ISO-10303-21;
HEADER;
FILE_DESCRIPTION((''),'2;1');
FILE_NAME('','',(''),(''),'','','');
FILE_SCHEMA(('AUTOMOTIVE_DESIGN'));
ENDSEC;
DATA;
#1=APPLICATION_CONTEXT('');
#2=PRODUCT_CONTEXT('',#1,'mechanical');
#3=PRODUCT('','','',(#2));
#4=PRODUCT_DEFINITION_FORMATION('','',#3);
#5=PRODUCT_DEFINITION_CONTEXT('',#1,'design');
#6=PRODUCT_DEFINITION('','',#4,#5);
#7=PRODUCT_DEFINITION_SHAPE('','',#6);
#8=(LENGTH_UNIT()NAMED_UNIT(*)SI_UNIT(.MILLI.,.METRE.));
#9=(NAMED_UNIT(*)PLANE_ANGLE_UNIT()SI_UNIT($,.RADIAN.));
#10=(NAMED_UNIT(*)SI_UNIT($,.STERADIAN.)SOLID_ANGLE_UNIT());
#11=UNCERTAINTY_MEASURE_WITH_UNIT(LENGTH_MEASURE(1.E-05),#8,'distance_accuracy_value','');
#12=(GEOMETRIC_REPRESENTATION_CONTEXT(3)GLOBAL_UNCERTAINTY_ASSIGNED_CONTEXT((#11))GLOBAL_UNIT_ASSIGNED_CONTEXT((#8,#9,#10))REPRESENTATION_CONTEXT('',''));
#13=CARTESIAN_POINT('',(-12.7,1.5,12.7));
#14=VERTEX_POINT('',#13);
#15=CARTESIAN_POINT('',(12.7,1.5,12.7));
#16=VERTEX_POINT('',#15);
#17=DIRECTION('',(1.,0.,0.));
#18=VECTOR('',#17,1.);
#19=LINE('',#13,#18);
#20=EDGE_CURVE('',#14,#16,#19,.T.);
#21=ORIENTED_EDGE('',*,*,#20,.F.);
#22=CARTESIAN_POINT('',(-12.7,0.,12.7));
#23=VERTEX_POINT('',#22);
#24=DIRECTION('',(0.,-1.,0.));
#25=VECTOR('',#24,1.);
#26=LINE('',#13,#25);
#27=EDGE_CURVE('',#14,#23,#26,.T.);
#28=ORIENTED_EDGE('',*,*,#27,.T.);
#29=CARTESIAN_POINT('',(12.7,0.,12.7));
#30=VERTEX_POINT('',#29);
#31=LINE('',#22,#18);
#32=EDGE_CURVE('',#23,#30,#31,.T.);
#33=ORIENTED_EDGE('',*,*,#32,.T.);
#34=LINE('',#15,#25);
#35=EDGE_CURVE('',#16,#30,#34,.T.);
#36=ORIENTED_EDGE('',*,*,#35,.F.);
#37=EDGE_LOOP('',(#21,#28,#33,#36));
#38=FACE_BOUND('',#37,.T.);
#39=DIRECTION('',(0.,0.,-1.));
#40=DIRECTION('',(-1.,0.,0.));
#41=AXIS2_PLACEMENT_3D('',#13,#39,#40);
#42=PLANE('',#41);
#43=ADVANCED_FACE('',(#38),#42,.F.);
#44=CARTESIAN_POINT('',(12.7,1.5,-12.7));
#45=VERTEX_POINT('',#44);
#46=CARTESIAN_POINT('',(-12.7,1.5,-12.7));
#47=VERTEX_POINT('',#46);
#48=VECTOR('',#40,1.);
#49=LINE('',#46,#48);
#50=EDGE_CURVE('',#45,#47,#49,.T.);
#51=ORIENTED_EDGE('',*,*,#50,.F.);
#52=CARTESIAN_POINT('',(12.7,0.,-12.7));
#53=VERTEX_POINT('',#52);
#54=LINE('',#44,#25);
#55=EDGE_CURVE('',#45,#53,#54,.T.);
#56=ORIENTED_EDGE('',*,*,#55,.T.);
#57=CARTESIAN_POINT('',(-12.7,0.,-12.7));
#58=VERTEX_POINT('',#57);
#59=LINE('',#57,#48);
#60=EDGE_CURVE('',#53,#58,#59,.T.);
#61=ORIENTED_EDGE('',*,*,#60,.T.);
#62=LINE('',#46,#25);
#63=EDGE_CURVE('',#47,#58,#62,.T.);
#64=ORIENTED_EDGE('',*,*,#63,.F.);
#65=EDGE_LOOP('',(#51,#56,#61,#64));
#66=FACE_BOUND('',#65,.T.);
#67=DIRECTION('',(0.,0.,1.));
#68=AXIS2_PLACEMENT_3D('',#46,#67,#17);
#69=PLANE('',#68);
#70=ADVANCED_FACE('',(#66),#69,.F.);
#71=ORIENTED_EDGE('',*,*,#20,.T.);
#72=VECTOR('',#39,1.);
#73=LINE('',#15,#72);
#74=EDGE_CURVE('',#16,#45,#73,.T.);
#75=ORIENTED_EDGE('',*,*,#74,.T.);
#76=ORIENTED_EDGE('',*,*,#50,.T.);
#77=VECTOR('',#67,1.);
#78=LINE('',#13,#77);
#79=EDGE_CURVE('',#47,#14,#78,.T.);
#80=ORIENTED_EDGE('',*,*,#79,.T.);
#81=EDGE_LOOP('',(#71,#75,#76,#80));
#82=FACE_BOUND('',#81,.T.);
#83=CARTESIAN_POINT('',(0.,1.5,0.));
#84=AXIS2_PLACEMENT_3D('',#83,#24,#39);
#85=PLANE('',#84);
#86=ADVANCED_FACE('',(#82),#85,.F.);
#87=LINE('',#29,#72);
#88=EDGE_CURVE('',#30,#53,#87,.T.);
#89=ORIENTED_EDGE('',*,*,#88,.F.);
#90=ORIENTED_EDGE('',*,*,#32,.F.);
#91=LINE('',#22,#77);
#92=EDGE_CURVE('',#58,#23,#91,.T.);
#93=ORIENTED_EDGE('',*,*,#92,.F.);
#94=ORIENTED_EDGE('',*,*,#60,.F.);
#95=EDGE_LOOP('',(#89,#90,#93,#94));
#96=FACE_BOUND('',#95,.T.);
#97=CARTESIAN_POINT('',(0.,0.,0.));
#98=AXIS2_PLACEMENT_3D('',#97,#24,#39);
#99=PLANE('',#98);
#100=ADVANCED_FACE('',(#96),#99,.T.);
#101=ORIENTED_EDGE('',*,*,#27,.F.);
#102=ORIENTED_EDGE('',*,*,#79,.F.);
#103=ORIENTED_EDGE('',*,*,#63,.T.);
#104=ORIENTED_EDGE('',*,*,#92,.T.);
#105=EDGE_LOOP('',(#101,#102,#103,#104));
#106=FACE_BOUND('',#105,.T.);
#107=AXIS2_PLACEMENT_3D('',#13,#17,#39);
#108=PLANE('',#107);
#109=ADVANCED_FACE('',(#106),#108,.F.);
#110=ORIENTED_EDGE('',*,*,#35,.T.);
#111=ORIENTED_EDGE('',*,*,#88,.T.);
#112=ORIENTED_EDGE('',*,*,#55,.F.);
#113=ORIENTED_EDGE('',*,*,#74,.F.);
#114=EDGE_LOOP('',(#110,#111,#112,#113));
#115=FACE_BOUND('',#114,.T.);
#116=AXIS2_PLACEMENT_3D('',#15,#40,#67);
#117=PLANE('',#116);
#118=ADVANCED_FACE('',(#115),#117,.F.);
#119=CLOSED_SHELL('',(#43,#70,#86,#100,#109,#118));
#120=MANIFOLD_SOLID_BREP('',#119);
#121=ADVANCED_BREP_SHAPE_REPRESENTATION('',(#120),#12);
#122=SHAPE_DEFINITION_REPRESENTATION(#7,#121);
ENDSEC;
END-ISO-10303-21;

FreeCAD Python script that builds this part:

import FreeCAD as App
import Part
import Sketcher

V = App.Vector


def add_polygon(sketch, points):
    """Adds a closed chain of lines whose ends are joined by coincident constraints."""
    first, n = sketch.GeometryCount, len(points)
    for a, b in zip(points, points[1:] + points[:1]):
        sketch.addGeometry(Part.LineSegment(App.Vector(*a, 0), App.Vector(*b, 0)), False)
    for i in range(n):
        sketch.addConstraint(Sketcher.Constraint("Coincident", first + i, 2, first + (i + 1) % n, 1))

doc = App.newDocument("Part")
body = doc.addObject("PartDesign::Body", "Body")

# Sketch on XZ plane
sketch1 = body.newObject("Sketcher::SketchObject", "Sketch")
sketch1.AttachmentSupport = (doc.getObject("XZ_Plane"), [""])
sketch1.MapMode = "FlatFace"
add_polygon(sketch1, [(-13, -13), (-13, 13), (13, 13), (13, -13)])  # lines 0-3
sketch1.addConstraint([
    Sketcher.Constraint("Vertical", 0),
    Sketcher.Constraint("Horizontal", 1),
    Sketcher.Constraint("Vertical", 2),
    Sketcher.Constraint("Horizontal", 3),
    Sketcher.Constraint("Symmetric", 0, 2, 2, 2, -1, 1),
    Sketcher.Constraint("Equal", 3, 0),
    Sketcher.Constraint("DistanceX", 1, 1, 1, 2, 25.4),
])
pad1 = body.newObject("PartDesign::Pad", "Pad")
pad1.Profile = sketch1
pad1.Length = 1.5
pad1.Reversed = True

doc.recompute()
